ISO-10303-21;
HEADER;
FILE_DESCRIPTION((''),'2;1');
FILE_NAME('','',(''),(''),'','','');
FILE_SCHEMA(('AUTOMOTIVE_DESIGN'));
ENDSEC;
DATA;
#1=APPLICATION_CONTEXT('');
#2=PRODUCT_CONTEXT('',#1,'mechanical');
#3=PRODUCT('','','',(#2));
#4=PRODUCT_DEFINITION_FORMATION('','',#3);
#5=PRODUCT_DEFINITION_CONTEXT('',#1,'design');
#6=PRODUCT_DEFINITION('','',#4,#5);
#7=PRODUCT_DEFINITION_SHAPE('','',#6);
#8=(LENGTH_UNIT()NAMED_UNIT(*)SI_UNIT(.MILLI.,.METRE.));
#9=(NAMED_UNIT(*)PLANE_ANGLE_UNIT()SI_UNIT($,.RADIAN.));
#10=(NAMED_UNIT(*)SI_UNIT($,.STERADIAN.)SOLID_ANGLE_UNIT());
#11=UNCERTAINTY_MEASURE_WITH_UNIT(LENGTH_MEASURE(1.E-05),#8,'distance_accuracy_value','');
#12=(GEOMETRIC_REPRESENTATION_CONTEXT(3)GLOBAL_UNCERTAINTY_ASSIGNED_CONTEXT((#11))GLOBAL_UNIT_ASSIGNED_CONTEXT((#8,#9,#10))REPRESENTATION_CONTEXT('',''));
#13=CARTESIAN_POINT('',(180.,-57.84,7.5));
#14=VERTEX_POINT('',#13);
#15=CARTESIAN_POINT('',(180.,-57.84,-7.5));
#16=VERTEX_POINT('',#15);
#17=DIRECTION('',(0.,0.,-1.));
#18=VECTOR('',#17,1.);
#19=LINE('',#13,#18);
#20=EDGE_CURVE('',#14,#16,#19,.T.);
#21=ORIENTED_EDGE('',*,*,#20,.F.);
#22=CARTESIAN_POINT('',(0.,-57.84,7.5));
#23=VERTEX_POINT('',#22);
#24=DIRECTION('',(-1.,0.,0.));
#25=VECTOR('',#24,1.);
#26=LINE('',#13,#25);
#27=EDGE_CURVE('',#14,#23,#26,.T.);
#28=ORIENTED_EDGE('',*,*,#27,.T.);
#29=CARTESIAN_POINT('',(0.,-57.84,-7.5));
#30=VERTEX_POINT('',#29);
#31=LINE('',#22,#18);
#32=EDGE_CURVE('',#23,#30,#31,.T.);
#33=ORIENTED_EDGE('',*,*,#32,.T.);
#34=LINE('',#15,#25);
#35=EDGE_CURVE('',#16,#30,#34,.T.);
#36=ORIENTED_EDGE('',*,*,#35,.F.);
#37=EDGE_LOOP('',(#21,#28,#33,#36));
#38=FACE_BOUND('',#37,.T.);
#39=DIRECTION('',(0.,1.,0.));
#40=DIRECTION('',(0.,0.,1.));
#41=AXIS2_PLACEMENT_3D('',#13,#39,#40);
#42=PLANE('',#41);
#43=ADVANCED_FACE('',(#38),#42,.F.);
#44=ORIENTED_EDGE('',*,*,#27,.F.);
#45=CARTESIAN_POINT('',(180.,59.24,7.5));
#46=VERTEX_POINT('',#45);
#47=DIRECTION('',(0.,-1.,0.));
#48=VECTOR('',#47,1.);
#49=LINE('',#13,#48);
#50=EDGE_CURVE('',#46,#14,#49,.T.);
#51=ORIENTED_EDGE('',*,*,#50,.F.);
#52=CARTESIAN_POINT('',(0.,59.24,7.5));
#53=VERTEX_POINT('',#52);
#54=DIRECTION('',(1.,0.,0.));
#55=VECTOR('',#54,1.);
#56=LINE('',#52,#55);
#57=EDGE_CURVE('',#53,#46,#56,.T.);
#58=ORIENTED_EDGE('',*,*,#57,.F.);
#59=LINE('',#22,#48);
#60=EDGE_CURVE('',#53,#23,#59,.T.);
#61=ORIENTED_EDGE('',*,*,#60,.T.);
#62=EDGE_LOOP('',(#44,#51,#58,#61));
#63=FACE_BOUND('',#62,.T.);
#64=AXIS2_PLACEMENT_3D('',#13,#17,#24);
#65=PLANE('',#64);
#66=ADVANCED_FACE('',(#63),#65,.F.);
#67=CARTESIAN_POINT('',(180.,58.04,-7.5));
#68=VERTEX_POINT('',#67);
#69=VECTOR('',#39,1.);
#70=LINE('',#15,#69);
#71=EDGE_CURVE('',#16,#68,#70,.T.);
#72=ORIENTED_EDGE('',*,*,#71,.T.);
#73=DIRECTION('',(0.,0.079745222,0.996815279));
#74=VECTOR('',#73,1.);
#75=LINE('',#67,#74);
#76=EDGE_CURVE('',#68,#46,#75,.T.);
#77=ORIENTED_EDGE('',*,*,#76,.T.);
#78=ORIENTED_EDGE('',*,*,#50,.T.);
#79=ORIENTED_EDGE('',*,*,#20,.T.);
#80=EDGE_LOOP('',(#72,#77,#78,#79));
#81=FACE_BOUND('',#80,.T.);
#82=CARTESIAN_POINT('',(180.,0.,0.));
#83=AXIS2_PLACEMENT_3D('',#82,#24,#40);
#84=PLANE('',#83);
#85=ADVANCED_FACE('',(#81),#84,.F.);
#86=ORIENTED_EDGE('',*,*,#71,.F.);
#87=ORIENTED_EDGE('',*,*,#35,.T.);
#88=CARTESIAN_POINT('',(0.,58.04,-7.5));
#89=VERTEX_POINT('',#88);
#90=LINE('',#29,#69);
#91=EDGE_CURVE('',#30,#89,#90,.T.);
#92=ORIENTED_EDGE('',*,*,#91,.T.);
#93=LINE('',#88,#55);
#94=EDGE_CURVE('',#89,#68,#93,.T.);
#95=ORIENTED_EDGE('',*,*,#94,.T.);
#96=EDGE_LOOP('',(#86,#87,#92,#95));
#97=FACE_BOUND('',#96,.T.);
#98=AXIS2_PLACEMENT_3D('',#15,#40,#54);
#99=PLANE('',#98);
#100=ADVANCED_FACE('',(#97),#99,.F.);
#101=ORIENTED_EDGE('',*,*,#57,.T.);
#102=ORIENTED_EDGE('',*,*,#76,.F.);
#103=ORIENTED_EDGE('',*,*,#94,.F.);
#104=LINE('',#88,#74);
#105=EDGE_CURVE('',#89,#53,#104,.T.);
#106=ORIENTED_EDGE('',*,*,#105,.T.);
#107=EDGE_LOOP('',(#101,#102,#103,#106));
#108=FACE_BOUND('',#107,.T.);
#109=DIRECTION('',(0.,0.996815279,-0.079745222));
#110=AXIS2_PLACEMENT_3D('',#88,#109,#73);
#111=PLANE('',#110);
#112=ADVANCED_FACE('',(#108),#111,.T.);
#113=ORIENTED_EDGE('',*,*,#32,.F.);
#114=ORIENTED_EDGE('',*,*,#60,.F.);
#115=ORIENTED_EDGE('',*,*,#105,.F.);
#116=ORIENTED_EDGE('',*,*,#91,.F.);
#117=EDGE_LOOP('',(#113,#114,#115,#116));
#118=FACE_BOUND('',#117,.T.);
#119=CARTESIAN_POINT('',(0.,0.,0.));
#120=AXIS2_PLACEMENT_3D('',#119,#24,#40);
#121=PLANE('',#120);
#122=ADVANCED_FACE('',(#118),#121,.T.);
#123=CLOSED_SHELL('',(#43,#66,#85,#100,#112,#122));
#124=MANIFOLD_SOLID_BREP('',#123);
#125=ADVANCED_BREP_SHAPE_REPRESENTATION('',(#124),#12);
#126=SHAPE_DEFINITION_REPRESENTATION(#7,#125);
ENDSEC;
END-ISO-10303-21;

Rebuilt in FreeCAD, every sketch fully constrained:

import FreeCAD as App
import Part
import Sketcher

V = App.Vector


def add_polygon(sketch, points):
    """Adds a closed chain of lines whose ends are joined by coincident constraints."""
    first, n = sketch.GeometryCount, len(points)
    for a, b in zip(points, points[1:] + points[:1]):
        sketch.addGeometry(Part.LineSegment(App.Vector(*a, 0), App.Vector(*b, 0)), False)
    for i in range(n):
        sketch.addConstraint(Sketcher.Constraint("Coincident", first + i, 2, first + (i + 1) % n, 1))

doc = App.newDocument("Part")
params = doc.addObject("Spreadsheet::Sheet", "Params")
for row, (alias, value) in enumerate([
    ("sketch1_height", "15 mm"),
    ("sketch1_width", "115.68 mm"),
    ("pad1_length", "180 mm"),
    ("sketch2_height", "15 mm"),
    ("sketch2_width", "0.2 mm"),
    ("sketch2_width2", "1.4 mm"),
    ("pad2_length", "180 mm"),
], start=1):
    params.set(f"A{row}", alias)
    params.set(f"B{row}", "=" + value)
    params.setAlias(f"B{row}", alias)

body = doc.addObject("PartDesign::Body", "Body")

sketch1 = body.newObject("Sketcher::SketchObject", "Sketch")
sketch1.AttachmentSupport = (doc.getObject("YZ_Plane"), [""])
sketch1.MapMode = "FlatFace"
add_polygon(sketch1, [(57.84, 7.5), (-57.84, 7.5), (-57.84, -7.5), (57.84, -7.5)])
sketch1.addConstraint([
    Sketcher.Constraint("Horizontal", 0),
    Sketcher.Constraint("Vertical", 1),
    Sketcher.Constraint("Horizontal", 2),
    Sketcher.Constraint("Vertical", 3),
    Sketcher.Constraint("Symmetric", 0, 2, 2, 2, -1, 1),
    Sketcher.Constraint("DistanceY", 1, 2, 1, 1, 15.0),
    Sketcher.Constraint("DistanceX", 0, 2, 0, 1, 115.68),
])
sketch1.setExpression("Constraints[9]", "Params.sketch1_height")
sketch1.setExpression("Constraints[10]", "Params.sketch1_width")
pad1 = body.newObject("PartDesign::Pad", "Pad")
pad1.Profile = sketch1
pad1.setExpression("Length", "Params.pad1_length")

sketch2 = body.newObject("Sketcher::SketchObject", "Sketch001")
sketch2.AttachmentSupport = (doc.getObject("YZ_Plane"), [""])
sketch2.MapMode = "FlatFace"
sketch2.AttachmentOffset = App.Placement(V(0, 0, 180), App.Rotation())
add_polygon(sketch2, [(57.84, 7.5), (57.84, -7.5), (58.04, -7.5), (59.24, 7.5)])
sketch2.addConstraint([
    Sketcher.Constraint("Vertical", 0),
    Sketcher.Constraint("Horizontal", 1),
    Sketcher.Constraint("Horizontal", 3),
    Sketcher.Constraint("DistanceY", 0, 2, 0, 1, 15.0),
    Sketcher.Constraint("DistanceX", 1, 1, 1, 2, 0.2),
    Sketcher.Constraint("DistanceX", 3, 2, 3, 1, 1.4),
    Sketcher.Constraint("DistanceY", 0, 2, -1, 1, 7.5),
    Sketcher.Constraint("DistanceX", -1, 1, 0, 2, 57.84),
])
sketch2.setExpression("Constraints[7]", "Params.sketch2_height")
sketch2.setExpression("Constraints[8]", "Params.sketch2_width")
sketch2.setExpression("Constraints[9]", "Params.sketch2_width2")
pad2 = body.newObject("PartDesign::Pad", "Pad001")
pad2.Profile = sketch2
pad2.setExpression("Length", "Params.pad2_length")
pad2.Reversed = True

doc.recompute()
